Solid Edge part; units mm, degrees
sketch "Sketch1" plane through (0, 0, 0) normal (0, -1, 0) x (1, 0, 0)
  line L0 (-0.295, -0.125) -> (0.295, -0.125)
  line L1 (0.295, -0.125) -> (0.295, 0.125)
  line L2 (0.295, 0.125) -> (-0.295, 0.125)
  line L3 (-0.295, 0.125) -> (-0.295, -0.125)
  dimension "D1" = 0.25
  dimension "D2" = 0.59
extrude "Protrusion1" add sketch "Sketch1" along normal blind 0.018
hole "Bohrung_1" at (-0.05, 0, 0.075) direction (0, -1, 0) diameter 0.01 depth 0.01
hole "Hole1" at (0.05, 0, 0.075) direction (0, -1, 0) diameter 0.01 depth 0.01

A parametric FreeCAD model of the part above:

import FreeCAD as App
import Part
import Sketcher

doc = App.newDocument("Part")
body = doc.addObject("PartDesign::Body", "Body")

# Sketch on XZ plane
sketch1 = body.newObject("Sketcher::SketchObject", "Sketch")
sketch1.AttachmentSupport = (doc.getObject("XZ_Plane"), [""])
sketch1.MapMode = "FlatFace"
sketch1.addGeometry(Part.LineSegment(App.Vector(-0.29, 0.12, 0), App.Vector(-0.29, -0.12, 0)), False)
sketch1.addGeometry(Part.LineSegment(App.Vector(-0.29, -0.12, 0), App.Vector(0.29, -0.12, 0)), False)
sketch1.addGeometry(Part.LineSegment(App.Vector(0.29, -0.12, 0), App.Vector(0.29, 0.12, 0)), False)
sketch1.addGeometry(Part.LineSegment(App.Vector(0.29, 0.12, 0), App.Vector(-0.29, 0.12, 0)), False)
sketch1.addConstraint(Sketcher.Constraint("Coincident", 0, 2, 1, 1))
sketch1.addConstraint(Sketcher.Constraint("Coincident", 1, 2, 2, 1))
sketch1.addConstraint(Sketcher.Constraint("Coincident", 2, 2, 3, 1))
sketch1.addConstraint(Sketcher.Constraint("Coincident", 3, 2, 0, 1))
sketch1.addConstraint(Sketcher.Constraint("Vertical", 0))
sketch1.addConstraint(Sketcher.Constraint("Horizontal", 1))
sketch1.addConstraint(Sketcher.Constraint("Vertical", 2))
sketch1.addConstraint(Sketcher.Constraint("Horizontal", 3))
sketch1.addConstraint(Sketcher.Constraint("Symmetric", 0, 2, 2, 2, -1, 1))
sketch1.addConstraint(Sketcher.Constraint("DistanceX", 0, 2, -1, 1, 0.295))
sketch1.addConstraint(Sketcher.Constraint("DistanceY", 0, 2, 0, 1, 0.25))
pad1 = body.newObject("PartDesign::Pad", "Pad")
pad1.Profile = sketch1
pad1.Length = 0.018

# Sketch on XZ plane
sketch2 = body.newObject("Sketcher::SketchObject", "Sketch001")
sketch2.AttachmentSupport = (doc.getObject("XZ_Plane"), [""])
sketch2.MapMode = "FlatFace"
sketch2.addGeometry(Part.Circle(App.Vector(-0.05, 0.075, 0), App.Vector(0, 0, 1), 0.005), False)
sketch2.addConstraint(Sketcher.Constraint("Diameter", 0, 0.01))
sketch2.addConstraint(Sketcher.Constraint("DistanceX", 0, 3, -1, 1, 0.05))
sketch2.addConstraint(Sketcher.Constraint("DistanceY", -1, 1, 0, 3, 0.075))
doc.recompute()
hole = body.newObject("PartDesign::Hole", "Hole")
hole.Profile = sketch2
hole.ThreadType = "None"
hole.Diameter = 0.01
hole.DepthType = "Dimension"
hole.Depth = 0.01
hole.DrillPoint = "Flat"
hole.Reversed = True

# Sketch on XZ plane
sketch3 = body.newObject("Sketcher::SketchObject", "Sketch002")
sketch3.AttachmentSupport = (doc.getObject("XZ_Plane"), [""])
sketch3.MapMode = "FlatFace"
sketch3.addGeometry(Part.Circle(App.Vector(0.05, 0.075, 0), App.Vector(0, 0, 1), 0.005), False)
sketch3.addConstraint(Sketcher.Constraint("Diameter", 0, 0.01))
sketch3.addConstraint(Sketcher.Constraint("DistanceX", -1, 1, 0, 3, 0.05))
sketch3.addConstraint(Sketcher.Constraint("DistanceY", -1, 1, 0, 3, 0.075))
doc.recompute()
hole2 = body.newObject("PartDesign::Hole", "Hole001")
hole2.Profile = sketch3
hole2.ThreadType = "None"
hole2.Diameter = 0.01
hole2.DepthType = "Dimension"
hole2.Depth = 0.01
hole2.DrillPoint = "Flat"
hole2.Reversed = True

doc.recompute()
